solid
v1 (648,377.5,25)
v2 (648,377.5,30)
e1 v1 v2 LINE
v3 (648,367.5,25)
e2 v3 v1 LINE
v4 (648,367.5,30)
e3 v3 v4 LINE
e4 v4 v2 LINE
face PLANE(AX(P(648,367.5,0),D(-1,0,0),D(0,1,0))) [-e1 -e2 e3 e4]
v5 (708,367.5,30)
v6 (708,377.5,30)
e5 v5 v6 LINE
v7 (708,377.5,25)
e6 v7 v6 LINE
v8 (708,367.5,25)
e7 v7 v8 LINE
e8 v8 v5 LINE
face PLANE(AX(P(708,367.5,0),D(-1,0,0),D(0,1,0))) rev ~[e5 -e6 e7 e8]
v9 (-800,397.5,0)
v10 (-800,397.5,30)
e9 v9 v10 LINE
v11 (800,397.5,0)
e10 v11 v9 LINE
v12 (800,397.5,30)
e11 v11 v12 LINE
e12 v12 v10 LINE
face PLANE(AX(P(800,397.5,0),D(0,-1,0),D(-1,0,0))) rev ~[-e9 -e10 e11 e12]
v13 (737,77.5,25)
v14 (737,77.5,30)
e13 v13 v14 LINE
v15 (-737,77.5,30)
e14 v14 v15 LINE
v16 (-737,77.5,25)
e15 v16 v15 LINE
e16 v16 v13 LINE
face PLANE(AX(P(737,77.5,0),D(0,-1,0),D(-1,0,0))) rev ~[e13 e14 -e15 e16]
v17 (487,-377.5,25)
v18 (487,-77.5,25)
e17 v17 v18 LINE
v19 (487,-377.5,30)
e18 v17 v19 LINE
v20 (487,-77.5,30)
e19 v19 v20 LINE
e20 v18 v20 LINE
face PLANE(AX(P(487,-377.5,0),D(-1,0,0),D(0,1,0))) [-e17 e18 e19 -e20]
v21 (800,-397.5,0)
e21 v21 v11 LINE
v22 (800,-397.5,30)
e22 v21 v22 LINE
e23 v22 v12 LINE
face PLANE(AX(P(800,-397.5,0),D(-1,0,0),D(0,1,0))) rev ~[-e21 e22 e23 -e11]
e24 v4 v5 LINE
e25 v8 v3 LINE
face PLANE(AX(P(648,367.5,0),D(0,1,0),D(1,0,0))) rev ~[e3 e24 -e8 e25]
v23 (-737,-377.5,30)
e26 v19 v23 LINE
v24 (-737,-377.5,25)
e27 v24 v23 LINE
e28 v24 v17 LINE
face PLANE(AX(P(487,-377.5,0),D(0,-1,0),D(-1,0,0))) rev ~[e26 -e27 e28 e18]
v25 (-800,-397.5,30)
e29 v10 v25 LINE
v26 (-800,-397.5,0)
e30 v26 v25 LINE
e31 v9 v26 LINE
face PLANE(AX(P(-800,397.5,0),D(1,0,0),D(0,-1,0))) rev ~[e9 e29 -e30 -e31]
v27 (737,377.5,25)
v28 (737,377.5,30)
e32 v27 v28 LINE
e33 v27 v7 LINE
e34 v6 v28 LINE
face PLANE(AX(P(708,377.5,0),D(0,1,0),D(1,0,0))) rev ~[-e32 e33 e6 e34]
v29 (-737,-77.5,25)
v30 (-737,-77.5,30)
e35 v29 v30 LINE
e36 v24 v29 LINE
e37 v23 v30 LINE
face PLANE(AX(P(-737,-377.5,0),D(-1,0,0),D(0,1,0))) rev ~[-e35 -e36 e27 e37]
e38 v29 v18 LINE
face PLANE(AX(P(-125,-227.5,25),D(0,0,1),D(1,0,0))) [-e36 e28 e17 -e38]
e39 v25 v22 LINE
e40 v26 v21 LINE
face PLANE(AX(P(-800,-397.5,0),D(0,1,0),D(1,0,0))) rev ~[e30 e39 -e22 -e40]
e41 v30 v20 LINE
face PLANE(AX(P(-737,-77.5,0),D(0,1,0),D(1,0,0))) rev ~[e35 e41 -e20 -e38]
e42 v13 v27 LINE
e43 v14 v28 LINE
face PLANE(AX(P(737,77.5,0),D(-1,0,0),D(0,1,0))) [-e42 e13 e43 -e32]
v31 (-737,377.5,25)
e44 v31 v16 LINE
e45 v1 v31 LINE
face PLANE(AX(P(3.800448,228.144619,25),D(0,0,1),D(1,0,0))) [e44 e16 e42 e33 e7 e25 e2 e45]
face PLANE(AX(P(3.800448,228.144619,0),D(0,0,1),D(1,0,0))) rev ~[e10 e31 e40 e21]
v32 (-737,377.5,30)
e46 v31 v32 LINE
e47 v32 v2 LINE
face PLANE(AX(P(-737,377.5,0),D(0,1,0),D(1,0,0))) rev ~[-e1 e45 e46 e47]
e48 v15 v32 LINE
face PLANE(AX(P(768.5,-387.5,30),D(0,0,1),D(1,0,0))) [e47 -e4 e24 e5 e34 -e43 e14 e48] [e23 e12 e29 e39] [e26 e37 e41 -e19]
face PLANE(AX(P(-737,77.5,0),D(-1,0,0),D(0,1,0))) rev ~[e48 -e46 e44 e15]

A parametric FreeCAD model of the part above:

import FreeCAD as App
import Part
import Sketcher
from FreeCAD import Vector
Q = App.Units.Quantity

doc = App.newDocument("Part")
body = doc.addObject("PartDesign::Body", "Body")

sketch1 = body.newObject("Sketcher::SketchObject", "Sketch")
sketch1.AttachmentSupport = (doc.getObject("XY_Plane"), [""])
sketch1.MapMode = "FlatFace"
sketch1.addGeometry([
    Part.LineSegment(Vector(800, 398, 0), Vector(-800, 398, 0)),
    Part.LineSegment(Vector(-800, 398, 0), Vector(-800, -398, 0)),
    Part.LineSegment(Vector(-800, -398, 0), Vector(800, -398, 0)),
    Part.LineSegment(Vector(800, -398, 0), Vector(800, 398, 0)),
    Part.LineSegment(Vector(-737, -78, 0), Vector(487, -78, 0)),
    Part.LineSegment(Vector(487, -78, 0), Vector(487, -378, 0)),
    Part.LineSegment(Vector(487, -378, 0), Vector(-737, -378, 0)),
    Part.LineSegment(Vector(-737, -378, 0), Vector(-737, -78, 0)),
    Part.LineSegment(Vector(737, 378, 0), Vector(737, 78, 0)),
    Part.LineSegment(Vector(737, 78, 0), Vector(-737, 78, 0)),
    Part.LineSegment(Vector(-737, 78, 0), Vector(-737, 378, 0)),
    Part.LineSegment(Vector(-737, 378, 0), Vector(648, 378, 0)),
    Part.LineSegment(Vector(648, 378, 0), Vector(648, 368, 0)),
    Part.LineSegment(Vector(648, 368, 0), Vector(708, 368, 0)),
    Part.LineSegment(Vector(708, 368, 0), Vector(708, 378, 0)),
    Part.LineSegment(Vector(708, 378, 0), Vector(737, 378, 0)),
], False)
sketch1.addConstraint([
    Sketcher.Constraint("Coincident", 0, 2, 1, 1),
    Sketcher.Constraint("Coincident", 1, 2, 2, 1),
    Sketcher.Constraint("Coincident", 2, 2, 3, 1),
    Sketcher.Constraint("Coincident", 3, 2, 0, 1),
    Sketcher.Constraint("Coincident", 4, 2, 5, 1),
    Sketcher.Constraint("Coincident", 5, 2, 6, 1),
    Sketcher.Constraint("Coincident", 6, 2, 7, 1),
    Sketcher.Constraint("Coincident", 7, 2, 4, 1),
    Sketcher.Constraint("Coincident", 8, 2, 9, 1),
    Sketcher.Constraint("Coincident", 9, 2, 10, 1),
    Sketcher.Constraint("Coincident", 10, 2, 11, 1),
    Sketcher.Constraint("Coincident", 11, 2, 12, 1),
    Sketcher.Constraint("Coincident", 12, 2, 13, 1),
    Sketcher.Constraint("Coincident", 13, 2, 14, 1),
    Sketcher.Constraint("Coincident", 14, 2, 15, 1),
    Sketcher.Constraint("Coincident", 15, 2, 8, 1),
    Sketcher.Constraint("Horizontal", 0),
    Sketcher.Constraint("Vertical", 1),
    Sketcher.Constraint("Horizontal", 2),
    Sketcher.Constraint("Vertical", 3),
    Sketcher.Constraint("Horizontal", 4),
    Sketcher.Constraint("Vertical", 5),
    Sketcher.Constraint("Horizontal", 6),
    Sketcher.Constraint("Vertical", 7),
    Sketcher.Constraint("Vertical", 8),
    Sketcher.Constraint("Horizontal", 9),
    Sketcher.Constraint("Vertical", 10),
    Sketcher.Constraint("Horizontal", 11),
    Sketcher.Constraint("Vertical", 12),
    Sketcher.Constraint("Horizontal", 13),
    Sketcher.Constraint("Vertical", 14),
    Sketcher.Constraint("Horizontal", 15),
    Sketcher.Constraint("Symmetric", 0, 2, 2, 2, -1, 1),
    Sketcher.Constraint("Symmetric", 7, 2, 8, 2, -1, 1),
    Sketcher.Constraint("Symmetric", 10, 2, 15, 2, -2),
    Sketcher.Constraint("Equal", 7, 8),
    Sketcher.Constraint("DistanceX", 0, 2, 0, 1, Q("1600 mm")),
    Sketcher.Constraint("DistanceX", 4, 1, 4, 2, Q("1224 mm")),
    Sketcher.Constraint("DistanceX", 9, 2, 9, 1, Q("1474 mm")),
    Sketcher.Constraint("DistanceX", 11, 1, 11, 2, Q("1385 mm")),
    Sketcher.Constraint("DistanceX", 13, 1, 13, 2, Q("60 mm")),
    Sketcher.Constraint("DistanceY", 1, 2, 1, 1, Q("795 mm")),
    Sketcher.Constraint("DistanceY", 5, 2, 5, 1, Q("300 mm")),
    Sketcher.Constraint("DistanceY", 12, 2, 12, 1, Q("10 mm")),
    Sketcher.Constraint("DistanceY", 2, 2, 4, 2, Q("320 mm")),
])
pad1 = body.newObject("PartDesign::Pad", "Pad")
pad1.Profile = sketch1
pad1.Length = 30

sketch2 = body.newObject("Sketcher::SketchObject", "Sketch001")
sketch2.AttachmentSupport = (doc.getObject("XY_Plane"), [""])
sketch2.MapMode = "FlatFace"
sketch2.addGeometry([
    Part.LineSegment(Vector(737, 78, 0), Vector(737, 378, 0)),
    Part.LineSegment(Vector(737, 378, 0), Vector(708, 378, 0)),
    Part.LineSegment(Vector(708, 378, 0), Vector(708, 368, 0)),
    Part.LineSegment(Vector(708, 368, 0), Vector(648, 368, 0)),
    Part.LineSegment(Vector(648, 368, 0), Vector(648, 378, 0)),
    Part.LineSegment(Vector(648, 378, 0), Vector(-737, 378, 0)),
    Part.LineSegment(Vector(-737, 378, 0), Vector(-737, 78, 0)),
    Part.LineSegment(Vector(-737, 78, 0), Vector(737, 78, 0)),
    Part.LineSegment(Vector(-737, -78, 0), Vector(-737, -378, 0)),
    Part.LineSegment(Vector(-737, -378, 0), Vector(487, -378, 0)),
    Part.LineSegment(Vector(487, -378, 0), Vector(487, -78, 0)),
    Part.LineSegment(Vector(487, -78, 0), Vector(-737, -78, 0)),
], False)
sketch2.addConstraint([
    Sketcher.Constraint("Coincident", 0, 2, 1, 1),
    Sketcher.Constraint("Coincident", 1, 2, 2, 1),
    Sketcher.Constraint("Coincident", 2, 2, 3, 1),
    Sketcher.Constraint("Coincident", 3, 2, 4, 1),
    Sketcher.Constraint("Coincident", 4, 2, 5, 1),
    Sketcher.Constraint("Coincident", 5, 2, 6, 1),
    Sketcher.Constraint("Coincident", 6, 2, 7, 1),
    Sketcher.Constraint("Coincident", 7, 2, 0, 1),
    Sketcher.Constraint("Coincident", 8, 2, 9, 1),
    Sketcher.Constraint("Coincident", 9, 2, 10, 1),
    Sketcher.Constraint("Coincident", 10, 2, 11, 1),
    Sketcher.Constraint("Coincident", 11, 2, 8, 1),
    Sketcher.Constraint("Vertical", 0),
    Sketcher.Constraint("Horizontal", 1),
    Sketcher.Constraint("Vertical", 2),
    Sketcher.Constraint("Horizontal", 3),
    Sketcher.Constraint("Vertical", 4),
    Sketcher.Constraint("Horizontal", 5),
    Sketcher.Constraint("Vertical", 6),
    Sketcher.Constraint("Horizontal", 7),
    Sketcher.Constraint("Vertical", 8),
    Sketcher.Constraint("Horizontal", 9),
    Sketcher.Constraint("Vertical", 10),
    Sketcher.Constraint("Horizontal", 11),
    Sketcher.Constraint("Symmetric", 0, 2, 8, 2, -1, 1),
    Sketcher.Constraint("Symmetric", 0, 2, 5, 2, -2),
    Sketcher.Constraint("Equal", 6, 8),
    Sketcher.Constraint("DistanceX", 1, 2, 1, 1, Q("29 mm")),
    Sketcher.Constraint("DistanceX", 3, 2, 3, 1, Q("60 mm")),
    Sketcher.Constraint("DistanceX", 5, 2, 5, 1, Q("1385 mm")),
    Sketcher.Constraint("DistanceX", 9, 1, 9, 2, Q("1224 mm")),
    Sketcher.Constraint("DistanceY", 0, 1, 0, 2, Q("300 mm")),
    Sketcher.Constraint("DistanceY", 2, 2, 2, 1, Q("10 mm")),
    Sketcher.Constraint("DistanceY", 8, 2, 6, 2, Q("455 mm")),
])
pad2 = body.newObject("PartDesign::Pad", "Pad001")
pad2.Profile = sketch2
pad2.Length = 25

doc.recompute()
